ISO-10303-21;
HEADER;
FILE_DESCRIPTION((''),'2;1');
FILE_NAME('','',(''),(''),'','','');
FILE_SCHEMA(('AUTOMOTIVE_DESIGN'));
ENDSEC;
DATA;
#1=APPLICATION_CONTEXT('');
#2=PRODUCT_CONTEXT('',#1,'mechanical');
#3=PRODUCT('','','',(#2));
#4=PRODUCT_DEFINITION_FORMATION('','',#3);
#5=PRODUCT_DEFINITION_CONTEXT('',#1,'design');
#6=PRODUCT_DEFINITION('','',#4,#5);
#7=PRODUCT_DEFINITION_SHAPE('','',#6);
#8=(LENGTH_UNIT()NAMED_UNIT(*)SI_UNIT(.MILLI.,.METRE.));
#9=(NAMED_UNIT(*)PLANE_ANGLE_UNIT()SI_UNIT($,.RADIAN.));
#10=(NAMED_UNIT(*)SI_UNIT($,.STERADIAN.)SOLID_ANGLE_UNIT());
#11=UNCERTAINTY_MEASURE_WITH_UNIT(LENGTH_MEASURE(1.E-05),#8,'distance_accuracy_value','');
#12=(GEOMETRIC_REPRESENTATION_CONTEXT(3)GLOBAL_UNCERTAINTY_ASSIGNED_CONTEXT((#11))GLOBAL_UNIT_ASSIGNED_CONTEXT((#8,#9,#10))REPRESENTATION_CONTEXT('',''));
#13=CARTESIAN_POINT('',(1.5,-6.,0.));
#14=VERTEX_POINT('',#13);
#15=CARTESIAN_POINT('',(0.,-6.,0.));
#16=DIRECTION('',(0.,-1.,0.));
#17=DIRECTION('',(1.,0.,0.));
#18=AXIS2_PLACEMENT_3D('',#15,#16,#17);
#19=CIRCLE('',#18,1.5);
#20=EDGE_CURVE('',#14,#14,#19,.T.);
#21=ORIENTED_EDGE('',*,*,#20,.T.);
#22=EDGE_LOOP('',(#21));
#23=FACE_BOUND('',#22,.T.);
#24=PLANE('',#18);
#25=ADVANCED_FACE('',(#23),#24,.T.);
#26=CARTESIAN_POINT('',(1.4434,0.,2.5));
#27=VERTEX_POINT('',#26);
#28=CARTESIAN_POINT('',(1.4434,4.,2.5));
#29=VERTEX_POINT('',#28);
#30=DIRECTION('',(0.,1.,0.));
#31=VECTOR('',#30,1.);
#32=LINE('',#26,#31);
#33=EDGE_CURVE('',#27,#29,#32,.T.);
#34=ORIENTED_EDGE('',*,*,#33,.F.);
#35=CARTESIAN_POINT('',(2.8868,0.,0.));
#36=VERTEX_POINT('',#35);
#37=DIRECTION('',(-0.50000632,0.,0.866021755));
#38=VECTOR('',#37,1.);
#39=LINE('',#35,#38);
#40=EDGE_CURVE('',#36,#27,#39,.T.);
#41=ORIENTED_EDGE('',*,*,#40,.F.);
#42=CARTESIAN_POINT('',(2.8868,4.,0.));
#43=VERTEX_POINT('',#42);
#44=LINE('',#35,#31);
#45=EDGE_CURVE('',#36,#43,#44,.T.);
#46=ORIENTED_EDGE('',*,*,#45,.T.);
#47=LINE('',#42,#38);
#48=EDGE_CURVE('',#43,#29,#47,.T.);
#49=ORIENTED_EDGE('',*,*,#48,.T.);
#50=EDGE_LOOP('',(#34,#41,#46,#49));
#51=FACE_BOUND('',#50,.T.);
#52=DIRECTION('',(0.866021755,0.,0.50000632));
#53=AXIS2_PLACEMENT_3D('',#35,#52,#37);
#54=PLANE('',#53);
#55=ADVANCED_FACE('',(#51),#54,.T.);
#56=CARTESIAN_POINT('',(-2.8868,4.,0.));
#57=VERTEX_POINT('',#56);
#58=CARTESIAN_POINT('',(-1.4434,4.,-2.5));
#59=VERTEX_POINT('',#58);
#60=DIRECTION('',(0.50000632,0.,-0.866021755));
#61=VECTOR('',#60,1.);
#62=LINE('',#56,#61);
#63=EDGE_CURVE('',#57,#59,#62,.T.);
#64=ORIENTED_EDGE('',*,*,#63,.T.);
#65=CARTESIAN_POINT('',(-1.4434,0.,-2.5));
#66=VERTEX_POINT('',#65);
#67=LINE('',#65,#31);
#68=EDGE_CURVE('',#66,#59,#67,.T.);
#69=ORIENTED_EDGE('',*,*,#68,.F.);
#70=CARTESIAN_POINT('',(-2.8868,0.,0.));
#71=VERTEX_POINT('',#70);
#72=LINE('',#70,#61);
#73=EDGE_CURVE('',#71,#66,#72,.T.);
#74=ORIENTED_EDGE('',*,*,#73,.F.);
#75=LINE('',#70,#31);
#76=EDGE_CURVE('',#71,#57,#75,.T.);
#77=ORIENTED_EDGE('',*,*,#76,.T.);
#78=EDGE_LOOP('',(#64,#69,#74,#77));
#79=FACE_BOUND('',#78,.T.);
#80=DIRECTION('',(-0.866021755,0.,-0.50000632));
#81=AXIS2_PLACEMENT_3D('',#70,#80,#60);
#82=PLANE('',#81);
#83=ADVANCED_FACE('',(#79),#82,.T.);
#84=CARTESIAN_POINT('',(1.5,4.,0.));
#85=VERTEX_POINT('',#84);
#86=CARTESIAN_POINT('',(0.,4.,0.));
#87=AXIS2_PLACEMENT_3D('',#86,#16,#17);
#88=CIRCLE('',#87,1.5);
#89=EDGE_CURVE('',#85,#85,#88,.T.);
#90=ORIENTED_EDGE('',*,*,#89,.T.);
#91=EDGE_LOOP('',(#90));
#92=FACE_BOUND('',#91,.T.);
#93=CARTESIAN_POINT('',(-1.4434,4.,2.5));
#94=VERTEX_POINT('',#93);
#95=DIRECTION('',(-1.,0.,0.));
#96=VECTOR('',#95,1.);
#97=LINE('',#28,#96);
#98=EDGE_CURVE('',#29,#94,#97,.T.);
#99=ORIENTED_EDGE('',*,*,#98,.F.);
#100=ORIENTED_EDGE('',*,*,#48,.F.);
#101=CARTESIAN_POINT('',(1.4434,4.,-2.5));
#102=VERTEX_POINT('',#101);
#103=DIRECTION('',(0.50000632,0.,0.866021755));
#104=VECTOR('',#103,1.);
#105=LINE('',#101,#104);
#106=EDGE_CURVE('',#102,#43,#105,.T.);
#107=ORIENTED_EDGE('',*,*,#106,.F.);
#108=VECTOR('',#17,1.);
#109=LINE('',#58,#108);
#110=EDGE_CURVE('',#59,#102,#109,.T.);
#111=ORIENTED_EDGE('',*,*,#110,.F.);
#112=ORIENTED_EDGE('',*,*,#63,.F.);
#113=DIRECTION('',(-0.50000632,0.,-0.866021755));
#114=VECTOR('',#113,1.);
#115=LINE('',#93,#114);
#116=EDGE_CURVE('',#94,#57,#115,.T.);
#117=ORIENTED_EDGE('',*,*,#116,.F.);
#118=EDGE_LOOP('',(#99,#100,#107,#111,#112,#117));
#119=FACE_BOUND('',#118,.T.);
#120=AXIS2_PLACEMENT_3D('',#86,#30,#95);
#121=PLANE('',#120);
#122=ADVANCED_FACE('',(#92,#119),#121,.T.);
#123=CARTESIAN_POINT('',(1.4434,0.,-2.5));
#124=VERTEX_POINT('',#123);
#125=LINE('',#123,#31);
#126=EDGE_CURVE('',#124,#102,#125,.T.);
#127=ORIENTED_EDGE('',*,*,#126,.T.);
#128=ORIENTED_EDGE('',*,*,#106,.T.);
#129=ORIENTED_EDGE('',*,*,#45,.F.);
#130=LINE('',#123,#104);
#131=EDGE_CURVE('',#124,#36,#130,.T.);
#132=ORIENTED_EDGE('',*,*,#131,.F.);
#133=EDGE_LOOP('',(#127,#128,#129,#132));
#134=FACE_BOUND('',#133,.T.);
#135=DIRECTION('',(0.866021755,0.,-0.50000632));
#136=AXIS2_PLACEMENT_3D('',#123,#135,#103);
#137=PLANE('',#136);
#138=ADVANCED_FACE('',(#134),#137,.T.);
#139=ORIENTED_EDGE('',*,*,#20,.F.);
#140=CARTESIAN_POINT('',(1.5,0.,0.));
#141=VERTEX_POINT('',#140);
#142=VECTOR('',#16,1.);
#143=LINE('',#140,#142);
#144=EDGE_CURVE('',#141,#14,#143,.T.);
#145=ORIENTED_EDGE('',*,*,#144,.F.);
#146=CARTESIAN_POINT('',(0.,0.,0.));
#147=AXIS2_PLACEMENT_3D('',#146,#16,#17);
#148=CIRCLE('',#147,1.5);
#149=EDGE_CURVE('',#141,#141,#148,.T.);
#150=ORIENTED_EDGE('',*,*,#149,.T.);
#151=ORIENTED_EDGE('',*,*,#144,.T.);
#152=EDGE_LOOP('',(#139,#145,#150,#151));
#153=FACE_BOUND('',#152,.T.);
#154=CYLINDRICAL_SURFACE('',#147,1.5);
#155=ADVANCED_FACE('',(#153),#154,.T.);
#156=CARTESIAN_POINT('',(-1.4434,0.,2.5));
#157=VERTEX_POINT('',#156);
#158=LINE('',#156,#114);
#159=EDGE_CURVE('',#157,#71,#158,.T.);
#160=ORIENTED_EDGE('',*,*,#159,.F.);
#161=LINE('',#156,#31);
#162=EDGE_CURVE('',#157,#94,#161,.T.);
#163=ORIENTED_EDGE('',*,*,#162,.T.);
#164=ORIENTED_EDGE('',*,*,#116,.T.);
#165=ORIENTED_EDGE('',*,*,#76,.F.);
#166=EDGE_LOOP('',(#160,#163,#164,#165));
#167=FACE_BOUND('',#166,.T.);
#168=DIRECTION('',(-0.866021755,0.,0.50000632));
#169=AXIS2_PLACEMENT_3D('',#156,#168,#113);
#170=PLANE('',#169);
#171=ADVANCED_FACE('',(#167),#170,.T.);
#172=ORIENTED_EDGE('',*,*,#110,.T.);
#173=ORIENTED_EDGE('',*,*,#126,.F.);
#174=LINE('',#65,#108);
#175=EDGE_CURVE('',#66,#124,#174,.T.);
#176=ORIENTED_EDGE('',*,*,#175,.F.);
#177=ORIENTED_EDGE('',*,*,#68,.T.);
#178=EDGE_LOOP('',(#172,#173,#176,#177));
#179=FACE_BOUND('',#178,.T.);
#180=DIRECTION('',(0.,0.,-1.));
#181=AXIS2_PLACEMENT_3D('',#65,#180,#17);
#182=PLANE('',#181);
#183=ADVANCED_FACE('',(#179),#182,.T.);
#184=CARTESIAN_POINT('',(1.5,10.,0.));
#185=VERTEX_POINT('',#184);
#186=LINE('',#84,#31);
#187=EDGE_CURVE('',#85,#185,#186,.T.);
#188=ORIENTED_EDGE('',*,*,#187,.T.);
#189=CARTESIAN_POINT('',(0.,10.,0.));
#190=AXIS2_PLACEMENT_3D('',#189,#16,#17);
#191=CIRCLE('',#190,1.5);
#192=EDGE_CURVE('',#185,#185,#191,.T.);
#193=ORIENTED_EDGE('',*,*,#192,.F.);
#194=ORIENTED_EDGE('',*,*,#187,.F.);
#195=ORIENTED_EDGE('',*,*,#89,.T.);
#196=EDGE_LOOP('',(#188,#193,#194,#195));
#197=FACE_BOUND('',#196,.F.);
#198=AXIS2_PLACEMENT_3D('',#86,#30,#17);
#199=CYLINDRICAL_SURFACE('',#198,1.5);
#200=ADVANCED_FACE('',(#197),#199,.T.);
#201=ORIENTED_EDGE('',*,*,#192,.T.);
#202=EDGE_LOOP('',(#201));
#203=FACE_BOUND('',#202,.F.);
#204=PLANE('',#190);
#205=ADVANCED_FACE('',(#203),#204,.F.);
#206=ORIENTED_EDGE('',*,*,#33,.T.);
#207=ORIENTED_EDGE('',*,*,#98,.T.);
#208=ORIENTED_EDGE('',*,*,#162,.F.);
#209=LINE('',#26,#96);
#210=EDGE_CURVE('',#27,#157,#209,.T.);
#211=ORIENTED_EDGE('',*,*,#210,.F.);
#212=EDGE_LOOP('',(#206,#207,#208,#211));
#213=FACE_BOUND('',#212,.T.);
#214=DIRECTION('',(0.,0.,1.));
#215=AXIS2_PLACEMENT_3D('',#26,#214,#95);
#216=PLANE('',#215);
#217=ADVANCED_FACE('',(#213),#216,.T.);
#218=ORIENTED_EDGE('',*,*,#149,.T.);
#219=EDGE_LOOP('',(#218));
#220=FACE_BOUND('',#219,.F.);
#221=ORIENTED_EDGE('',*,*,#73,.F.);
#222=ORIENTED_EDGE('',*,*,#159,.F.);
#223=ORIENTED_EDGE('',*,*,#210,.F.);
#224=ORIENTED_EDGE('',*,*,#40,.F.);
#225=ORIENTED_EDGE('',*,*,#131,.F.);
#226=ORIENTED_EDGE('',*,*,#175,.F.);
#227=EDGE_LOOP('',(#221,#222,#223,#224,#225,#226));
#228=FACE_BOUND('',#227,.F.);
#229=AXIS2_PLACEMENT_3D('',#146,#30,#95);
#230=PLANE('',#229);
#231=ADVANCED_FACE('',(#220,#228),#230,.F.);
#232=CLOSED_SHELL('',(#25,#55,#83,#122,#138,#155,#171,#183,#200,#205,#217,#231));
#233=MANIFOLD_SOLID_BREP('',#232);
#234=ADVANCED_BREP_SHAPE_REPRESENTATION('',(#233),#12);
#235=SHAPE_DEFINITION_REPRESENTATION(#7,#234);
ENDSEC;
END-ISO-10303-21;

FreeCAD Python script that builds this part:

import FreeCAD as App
import Part
import Sketcher
Q = App.Units.Quantity


def add_polygon(sketch, points):
    """Adds a closed chain of lines whose ends are joined by coincident constraints."""
    first, n = sketch.GeometryCount, len(points)
    for a, b in zip(points, points[1:] + points[:1]):
        sketch.addGeometry(Part.LineSegment(App.Vector(*a, 0), App.Vector(*b, 0)), False)
    for i in range(n):
        sketch.addConstraint(Sketcher.Constraint("Coincident", first + i, 2, first + (i + 1) % n, 1))

doc = App.newDocument("Part")
body = doc.addObject("PartDesign::Body", "Body")

# Sketch on XZ plane
sketch1 = doc.addObject("Sketcher::SketchObject", "Sketch")
body.addObject(sketch1)
sketch1.AttachmentSupport = (doc.XZ_Plane, [""])
sketch1.MapMode = "FlatFace"
add_polygon(sketch1, [(1.4434, 2.5), (2.8868, 0), (1.4434, -2.5), (-1.4434, -2.5), (-2.8868, 0), (-1.4434, 2.5)])  # lines 0-5
sketch1.addConstraint([
    Sketcher.Constraint("Horizontal", 2),
    Sketcher.Constraint("Horizontal", 5),
    Sketcher.Constraint("Symmetric", 0, 2, 3, 2, -1, 1),
    Sketcher.Constraint("Symmetric", 1, 2, 4, 2, -1, 1),
    Sketcher.Constraint("PointOnObject", 0, 2, -1),
    Sketcher.Constraint("Parallel", 0, 3),
    Sketcher.Constraint("Vertical", 2, 2, 4, 2),
    Sketcher.Constraint("DistanceY", 2, 2, 4, 2, Q("5 mm")),
    Sketcher.Constraint("Angle", 0, Q("-59.9996 deg")),
    Sketcher.Constraint("DistanceX", 2, 2, 2, 1, Q("2.8868 mm")),
])
pad1 = doc.addObject("PartDesign::Pad", "Pad")
body.addObject(pad1)
pad1.Profile = sketch1
pad1.Length = 4
pad1.Reversed = True

# Sketch on XY plane
sketch2 = doc.addObject("Sketcher::SketchObject", "Sketch001")
body.addObject(sketch2)
sketch2.AttachmentSupport = (doc.XY_Plane, [""])
sketch2.MapMode = "FlatFace"
add_polygon(sketch2, [(1.5, 0), (0, 0), (0, -6), (1.5, -6)])  # lines 0-3
add_polygon(sketch2, [(0, 4), (1.5, 4), (1.5, 10), (0, 10)])  # lines 4-7
sketch2.addConstraint([
    Sketcher.Constraint("Horizontal", 0),
    Sketcher.Constraint("Vertical", 1),
    Sketcher.Constraint("Horizontal", 2),
    Sketcher.Constraint("Vertical", 3),
    Sketcher.Constraint("Horizontal", 4),
    Sketcher.Constraint("Vertical", 5),
    Sketcher.Constraint("Horizontal", 6),
    Sketcher.Constraint("Vertical", 7),
    Sketcher.Constraint("Coincident", 0, 2, -1, 1),
    Sketcher.Constraint("PointOnObject", 6, 2, -2),
    Sketcher.Constraint("Vertical", 3, 2, 4, 2),
    Sketcher.Constraint("Equal", 3, 5),
    Sketcher.Constraint("DistanceY", 1, 2, 1, 1, Q("6 mm")),
    Sketcher.Constraint("DistanceX", 0, 2, 0, 1, Q("1.5 mm")),
    Sketcher.Constraint("DistanceY", -1, 1, 4, 2, Q("4 mm")),
])
revolution = doc.addObject("PartDesign::Revolution", "Revolution")
body.addObject(revolution)
revolution.Profile = sketch2
revolution.ReferenceAxis = (sketch2, ["V_Axis"])
revolution.Angle = 360

doc.recompute()
